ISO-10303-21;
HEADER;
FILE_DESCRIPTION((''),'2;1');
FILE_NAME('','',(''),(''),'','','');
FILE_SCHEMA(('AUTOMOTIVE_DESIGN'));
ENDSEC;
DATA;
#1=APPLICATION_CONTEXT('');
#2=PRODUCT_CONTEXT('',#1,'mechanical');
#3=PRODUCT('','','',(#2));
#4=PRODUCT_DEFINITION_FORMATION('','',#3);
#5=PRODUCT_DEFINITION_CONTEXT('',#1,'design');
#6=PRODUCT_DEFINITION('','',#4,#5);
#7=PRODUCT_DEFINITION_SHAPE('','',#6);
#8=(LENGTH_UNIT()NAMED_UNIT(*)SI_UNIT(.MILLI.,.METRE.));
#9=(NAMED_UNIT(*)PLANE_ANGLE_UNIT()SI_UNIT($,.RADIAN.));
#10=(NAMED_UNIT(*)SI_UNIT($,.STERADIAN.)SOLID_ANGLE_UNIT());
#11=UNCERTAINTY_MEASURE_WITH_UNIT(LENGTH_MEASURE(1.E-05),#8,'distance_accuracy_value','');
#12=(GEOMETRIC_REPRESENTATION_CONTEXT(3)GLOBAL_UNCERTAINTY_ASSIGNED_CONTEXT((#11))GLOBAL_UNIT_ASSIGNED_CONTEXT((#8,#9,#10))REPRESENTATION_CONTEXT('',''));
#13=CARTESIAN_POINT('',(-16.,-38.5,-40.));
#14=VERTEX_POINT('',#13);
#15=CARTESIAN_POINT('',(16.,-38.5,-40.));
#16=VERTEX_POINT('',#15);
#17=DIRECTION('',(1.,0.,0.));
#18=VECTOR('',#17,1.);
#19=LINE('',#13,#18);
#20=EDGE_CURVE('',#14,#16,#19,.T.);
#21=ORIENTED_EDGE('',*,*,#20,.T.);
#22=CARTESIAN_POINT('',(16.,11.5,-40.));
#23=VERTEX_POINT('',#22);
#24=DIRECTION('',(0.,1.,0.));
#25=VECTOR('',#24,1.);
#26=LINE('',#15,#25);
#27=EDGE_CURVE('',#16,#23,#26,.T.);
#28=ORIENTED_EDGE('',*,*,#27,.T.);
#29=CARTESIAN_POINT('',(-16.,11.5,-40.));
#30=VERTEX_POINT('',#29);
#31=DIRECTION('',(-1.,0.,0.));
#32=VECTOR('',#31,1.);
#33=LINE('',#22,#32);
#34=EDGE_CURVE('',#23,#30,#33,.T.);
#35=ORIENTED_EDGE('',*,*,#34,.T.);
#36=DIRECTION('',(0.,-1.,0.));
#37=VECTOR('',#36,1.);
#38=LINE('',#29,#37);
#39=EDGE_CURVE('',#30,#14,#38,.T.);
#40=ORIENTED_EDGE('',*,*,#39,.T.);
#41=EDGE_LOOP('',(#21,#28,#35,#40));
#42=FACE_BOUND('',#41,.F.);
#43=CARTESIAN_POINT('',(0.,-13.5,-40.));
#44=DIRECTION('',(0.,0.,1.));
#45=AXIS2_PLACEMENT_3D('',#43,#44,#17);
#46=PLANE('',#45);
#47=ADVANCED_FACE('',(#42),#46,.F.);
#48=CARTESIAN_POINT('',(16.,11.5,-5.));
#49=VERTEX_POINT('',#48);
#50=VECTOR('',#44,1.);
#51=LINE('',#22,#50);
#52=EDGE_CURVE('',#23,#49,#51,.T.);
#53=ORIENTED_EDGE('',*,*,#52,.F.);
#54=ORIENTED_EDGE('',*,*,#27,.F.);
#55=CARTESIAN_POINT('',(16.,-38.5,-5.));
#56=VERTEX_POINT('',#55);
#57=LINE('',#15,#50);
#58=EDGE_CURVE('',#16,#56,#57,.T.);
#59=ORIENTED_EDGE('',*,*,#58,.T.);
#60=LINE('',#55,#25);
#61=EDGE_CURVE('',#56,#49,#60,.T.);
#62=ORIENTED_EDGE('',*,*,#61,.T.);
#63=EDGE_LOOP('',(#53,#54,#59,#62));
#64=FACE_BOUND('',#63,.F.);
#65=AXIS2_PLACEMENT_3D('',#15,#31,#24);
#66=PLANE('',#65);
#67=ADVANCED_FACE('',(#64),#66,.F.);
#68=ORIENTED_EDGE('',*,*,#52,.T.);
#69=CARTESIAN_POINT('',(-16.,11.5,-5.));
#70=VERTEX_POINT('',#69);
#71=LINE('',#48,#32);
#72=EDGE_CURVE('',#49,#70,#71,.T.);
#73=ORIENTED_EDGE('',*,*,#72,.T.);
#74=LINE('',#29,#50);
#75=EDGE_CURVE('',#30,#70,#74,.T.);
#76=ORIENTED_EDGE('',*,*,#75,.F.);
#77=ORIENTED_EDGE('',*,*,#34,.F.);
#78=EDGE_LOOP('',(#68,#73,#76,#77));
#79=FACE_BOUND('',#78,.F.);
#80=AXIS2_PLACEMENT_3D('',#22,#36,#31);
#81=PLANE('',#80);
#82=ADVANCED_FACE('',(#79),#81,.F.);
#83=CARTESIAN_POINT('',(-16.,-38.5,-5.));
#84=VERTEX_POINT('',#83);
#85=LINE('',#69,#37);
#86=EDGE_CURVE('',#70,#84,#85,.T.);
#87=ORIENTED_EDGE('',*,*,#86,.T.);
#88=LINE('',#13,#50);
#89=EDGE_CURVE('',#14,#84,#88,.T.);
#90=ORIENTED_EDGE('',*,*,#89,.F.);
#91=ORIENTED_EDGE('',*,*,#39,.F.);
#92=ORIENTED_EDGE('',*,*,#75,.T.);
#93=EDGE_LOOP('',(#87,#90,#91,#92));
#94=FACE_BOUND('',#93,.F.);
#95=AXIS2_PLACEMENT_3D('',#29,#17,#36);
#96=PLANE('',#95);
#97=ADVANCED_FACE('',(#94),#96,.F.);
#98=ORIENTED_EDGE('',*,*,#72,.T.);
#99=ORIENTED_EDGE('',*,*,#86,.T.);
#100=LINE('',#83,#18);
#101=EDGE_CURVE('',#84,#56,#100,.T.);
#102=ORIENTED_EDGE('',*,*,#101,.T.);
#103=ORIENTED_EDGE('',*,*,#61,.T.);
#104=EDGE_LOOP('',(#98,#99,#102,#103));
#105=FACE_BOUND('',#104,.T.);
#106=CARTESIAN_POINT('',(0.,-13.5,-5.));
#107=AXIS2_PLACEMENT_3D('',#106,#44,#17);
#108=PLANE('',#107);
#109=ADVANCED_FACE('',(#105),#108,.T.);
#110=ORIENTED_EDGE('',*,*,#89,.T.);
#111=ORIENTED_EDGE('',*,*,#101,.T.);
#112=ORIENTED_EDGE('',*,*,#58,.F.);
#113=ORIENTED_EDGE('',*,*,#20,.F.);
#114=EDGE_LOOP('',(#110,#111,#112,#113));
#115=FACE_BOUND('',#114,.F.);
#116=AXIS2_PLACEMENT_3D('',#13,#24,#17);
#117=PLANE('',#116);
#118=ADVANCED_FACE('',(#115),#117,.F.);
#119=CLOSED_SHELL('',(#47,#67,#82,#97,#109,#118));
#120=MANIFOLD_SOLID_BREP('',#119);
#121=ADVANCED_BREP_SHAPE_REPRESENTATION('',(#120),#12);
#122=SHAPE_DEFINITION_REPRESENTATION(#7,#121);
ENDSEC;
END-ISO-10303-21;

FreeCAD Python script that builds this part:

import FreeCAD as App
import Part
import Sketcher

V = App.Vector

doc = App.newDocument("Part")
body = doc.addObject("PartDesign::Body", "Body")

# Sketch on XY plane
sketch1 = body.newObject("Sketcher::SketchObject", "Sketch")
sketch1.AttachmentSupport = (doc.getObject("XY_Plane"), [""])
sketch1.MapMode = "FlatFace"
sketch1.AttachmentOffset = App.Placement(V(0, 0, -40), App.Rotation())
sketch1.addGeometry(Part.LineSegment(V(-16, 12, 0), V(-16, -38, 0)), False)
sketch1.addGeometry(Part.LineSegment(V(-16, -38, 0), V(16, -38, 0)), False)
sketch1.addGeometry(Part.LineSegment(V(16, -38, 0), V(16, 12, 0)), False)
sketch1.addGeometry(Part.LineSegment(V(16, 12, 0), V(-16, 12, 0)), False)
sketch1.addConstraint(Sketcher.Constraint("Coincident", 0, 2, 1, 1))
sketch1.addConstraint(Sketcher.Constraint("Coincident", 1, 2, 2, 1))
sketch1.addConstraint(Sketcher.Constraint("Coincident", 2, 2, 3, 1))
sketch1.addConstraint(Sketcher.Constraint("Coincident", 3, 2, 0, 1))
sketch1.addConstraint(Sketcher.Constraint("Vertical", 0))
sketch1.addConstraint(Sketcher.Constraint("Horizontal", 1))
sketch1.addConstraint(Sketcher.Constraint("Vertical", 2))
sketch1.addConstraint(Sketcher.Constraint("Horizontal", 3))
sketch1.addConstraint(Sketcher.Constraint("DistanceX", 1, 1, 1, 2, 32.0))
sketch1.addConstraint(Sketcher.Constraint("DistanceY", 0, 2, 0, 1, 50.0))
sketch1.addConstraint(Sketcher.Constraint("DistanceX", 0, 2, -1, 1, 16.0))
sketch1.addConstraint(Sketcher.Constraint("DistanceY", 0, 2, -1, 1, 38.5))
pad1 = body.newObject("PartDesign::Pad", "Pad")
pad1.Profile = sketch1
pad1.Length = 35

doc.recompute()
